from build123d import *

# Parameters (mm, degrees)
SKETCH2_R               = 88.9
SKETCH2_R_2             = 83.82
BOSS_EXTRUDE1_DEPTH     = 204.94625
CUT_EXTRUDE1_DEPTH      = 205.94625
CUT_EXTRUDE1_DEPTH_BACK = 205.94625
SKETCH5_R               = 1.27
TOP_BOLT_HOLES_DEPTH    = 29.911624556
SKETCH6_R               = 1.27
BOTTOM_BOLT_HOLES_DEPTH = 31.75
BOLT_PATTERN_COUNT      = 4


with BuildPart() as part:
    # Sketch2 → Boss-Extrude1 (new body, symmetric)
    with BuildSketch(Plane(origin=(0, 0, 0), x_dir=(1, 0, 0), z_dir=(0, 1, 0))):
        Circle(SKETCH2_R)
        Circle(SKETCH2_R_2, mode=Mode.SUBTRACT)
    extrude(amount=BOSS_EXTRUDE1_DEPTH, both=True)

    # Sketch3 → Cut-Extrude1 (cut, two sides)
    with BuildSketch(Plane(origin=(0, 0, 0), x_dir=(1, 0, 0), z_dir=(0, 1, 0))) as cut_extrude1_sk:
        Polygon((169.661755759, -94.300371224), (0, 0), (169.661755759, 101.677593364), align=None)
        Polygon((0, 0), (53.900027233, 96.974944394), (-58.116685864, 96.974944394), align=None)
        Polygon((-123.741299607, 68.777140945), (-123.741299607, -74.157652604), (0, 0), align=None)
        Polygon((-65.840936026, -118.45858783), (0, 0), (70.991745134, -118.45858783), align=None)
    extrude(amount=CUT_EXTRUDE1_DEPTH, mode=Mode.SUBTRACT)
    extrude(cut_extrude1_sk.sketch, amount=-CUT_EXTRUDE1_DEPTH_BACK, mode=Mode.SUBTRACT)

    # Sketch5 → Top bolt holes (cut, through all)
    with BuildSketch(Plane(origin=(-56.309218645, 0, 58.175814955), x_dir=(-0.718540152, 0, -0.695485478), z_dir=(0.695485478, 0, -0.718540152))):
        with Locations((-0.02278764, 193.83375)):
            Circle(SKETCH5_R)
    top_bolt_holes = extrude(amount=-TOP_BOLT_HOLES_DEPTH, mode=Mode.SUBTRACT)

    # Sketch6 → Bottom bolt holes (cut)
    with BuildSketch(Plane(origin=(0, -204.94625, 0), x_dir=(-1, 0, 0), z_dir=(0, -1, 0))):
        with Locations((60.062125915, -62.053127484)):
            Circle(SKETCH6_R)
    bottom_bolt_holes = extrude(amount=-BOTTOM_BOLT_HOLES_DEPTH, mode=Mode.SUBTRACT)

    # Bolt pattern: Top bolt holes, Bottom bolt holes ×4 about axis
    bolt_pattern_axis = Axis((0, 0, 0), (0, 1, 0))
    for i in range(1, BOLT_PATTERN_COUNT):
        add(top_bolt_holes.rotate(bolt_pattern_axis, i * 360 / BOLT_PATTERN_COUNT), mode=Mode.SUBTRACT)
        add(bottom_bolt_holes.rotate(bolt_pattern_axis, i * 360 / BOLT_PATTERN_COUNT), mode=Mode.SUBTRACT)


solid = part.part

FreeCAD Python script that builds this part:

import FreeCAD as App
import Part
import Sketcher
from FreeCAD import Vector
Q = App.Units.Quantity

doc = App.newDocument("Part")
body = doc.addObject("PartDesign::Body", "Body")
body.AllowCompound = True

# Sketch on XZ plane
sketch1 = body.newObject("Sketcher::SketchObject", "Sketch")
sketch1.AttachmentSupport = (doc.getObject("XZ_Plane"), [""])
sketch1.MapMode = "FlatFace"
sketch1.addGeometry([
    Part.Circle(Vector(0, 0, 0), Vector(0, 0, 1), 89),
    Part.Circle(Vector(0, 0, 0), Vector(0, 0, 1), 84),
], False)
sketch1.addConstraint([
    Sketcher.Constraint("Coincident", 0, 3, -1, 1),
    Sketcher.Constraint("Coincident", 1, 3, -1, 1),
    Sketcher.Constraint("Diameter", 0, Q("7 in")),
    Sketcher.Constraint("Diameter", 1, Q("6.6 in")),
])
pad1 = body.newObject("PartDesign::Pad", "Pad")
pad1.Profile = sketch1
pad1.Length = Q("16.1375 in")
pad1.Midplane = True

# Sketch on XZ plane
sketch2 = body.newObject("Sketcher::SketchObject", "Sketch001")
sketch2.AttachmentSupport = (doc.getObject("XZ_Plane"), [""])
sketch2.MapMode = "FlatFace"
sketch2.addGeometry([
    Part.LineSegment(Vector(0, 0, 0), Vector(170, 94, 0)),  # 0
    Part.LineSegment(Vector(170, 94, 0), Vector(170, -102, 0)),  # 1
    Part.LineSegment(Vector(170, -102, 0), Vector(0, 0, 0)),  # 2
    Part.LineSegment(Vector(0, 0, 0), Vector(54, -97, 0)),  # 3
    Part.LineSegment(Vector(54, -97, 0), Vector(-58, -97, 0)),  # 4
    Part.LineSegment(Vector(-58, -97, 0), Vector(0, 0, 0)),  # 5
    Part.LineSegment(Vector(-124, -69, 0), Vector(-124, 74, 0)),  # 6
    Part.LineSegment(Vector(-124, 74, 0), Vector(0, 0, 0)),  # 7
    Part.LineSegment(Vector(0, 0, 0), Vector(-124, -69, 0)),  # 8
    Part.LineSegment(Vector(0, 0, 0), Vector(-66, 118, 0)),  # 9
    Part.LineSegment(Vector(-66, 118, 0), Vector(71, 118, 0)),  # 10
    Part.LineSegment(Vector(71, 118, 0), Vector(0, 0, 0)),  # 11
], False)
sketch2.addConstraint([
    Sketcher.Constraint("Coincident", 0, 2, 1, 1),
    Sketcher.Constraint("Coincident", 1, 2, 2, 1),
    Sketcher.Constraint("Coincident", 2, 2, 0, 1),
    Sketcher.Constraint("Coincident", 3, 2, 4, 1),
    Sketcher.Constraint("Coincident", 4, 2, 5, 1),
    Sketcher.Constraint("Coincident", 5, 2, 3, 1),
    Sketcher.Constraint("Coincident", 6, 2, 7, 1),
    Sketcher.Constraint("Coincident", 7, 2, 8, 1),
    Sketcher.Constraint("Coincident", 8, 2, 6, 1),
    Sketcher.Constraint("Coincident", 9, 2, 10, 1),
    Sketcher.Constraint("Coincident", 10, 2, 11, 1),
    Sketcher.Constraint("Coincident", 11, 2, 9, 1),
    Sketcher.Constraint("Vertical", 1),
    Sketcher.Constraint("Horizontal", 4),
    Sketcher.Constraint("Vertical", 6),
    Sketcher.Constraint("Horizontal", 10),
    Sketcher.Constraint("Coincident", 2, 2, -1, 1),
    Sketcher.Constraint("Coincident", 5, 2, -1, 1),
    Sketcher.Constraint("Coincident", 7, 2, -1, 1),
    Sketcher.Constraint("Coincident", 11, 2, -1, 1),
    Sketcher.Constraint("Perpendicular", 0, 3),
    Sketcher.Constraint("Perpendicular", 2, 5),
    Sketcher.Constraint("Perpendicular", 5, 7),
    Sketcher.Constraint("Perpendicular", 3, 8),
    Sketcher.Constraint("Perpendicular", 8, 9),
    Sketcher.Constraint("Perpendicular", 7, 11),
    Sketcher.Constraint("DistanceX", 10, 1, 10, 2, 136.832681),
    Sketcher.Constraint("DistanceX", 6, 2, -1, 1, 123.7413),
    Sketcher.Constraint("Distance", 0, 194.107371),
    Sketcher.Constraint("Distance", 11, 138.102371),
    Sketcher.Constraint("DistanceX", 4, 2, 4, 1, 112.016713),
    Sketcher.Constraint("DistanceY", 1, 2, 1, 1, 195.977965),
])
pocket1 = body.newObject("PartDesign::Pocket", "Pocket")
pocket1.Profile = sketch2
pocket1.Type = "ThroughAll"
pocket1.Midplane = True

# Sketch on an angled plane
sketch3 = body.newObject("Sketcher::SketchObject", "Sketch002")
sketch3.Placement = App.Placement(Vector(-56.309219, 0, 58.175815), App.Rotation(Vector(-0.718540152, 0, -0.695485478), Vector(0, 1, 0), Vector(0.695485478, 0, -0.718540152), "ZXY"))
sketch3.addGeometry(Part.Circle(Vector(0, 193.8, 0), Vector(0, 0, 1), 1.3), False)
sketch3.addConstraint([
    Sketcher.Constraint("Diameter", 0, Q("0.1 in")),
    Sketcher.Constraint("DistanceY", -1, 1, 0, 3, 193.83375),
    Sketcher.Constraint("DistanceX", 0, 3, -1, 1, 0.022788),
])
pocket2 = body.newObject("PartDesign::Pocket", "Pocket001")
pocket2.Profile = sketch3
pocket2.Type = "ThroughAll"

# Sketch on XZ plane
sketch4 = body.newObject("Sketcher::SketchObject", "Sketch003")
sketch4.AttachmentSupport = (doc.getObject("XZ_Plane"), [""])
sketch4.MapMode = "FlatFace"
sketch4.AttachmentOffset = App.Placement(Vector(0, 0, 204.94625), App.Rotation())
sketch4.addGeometry(Part.Circle(Vector(-60.1, 62.1, 0), Vector(0, 0, 1), 1.3), False)
sketch4.addConstraint([
    Sketcher.Constraint("Diameter", 0, Q("0.1 in")),
    Sketcher.Constraint("DistanceX", 0, 3, -1, 1, 60.062126),
    Sketcher.Constraint("DistanceY", -1, 1, 0, 3, 62.053127),
])
pocket3 = body.newObject("PartDesign::Pocket", "Pocket002")
pocket3.Profile = sketch4
pocket3.Length = Q("1.25 in")
doc.recompute()

polarpattern = body.newObject("PartDesign::PolarPattern", "PolarPattern")
polarpattern.Originals = [pocket2, pocket3]
polarpattern.Axis = (doc.getObject("Y_Axis"), [""])
polarpattern.Angle = 360
polarpattern.Occurrences = 4
body.Tip = polarpattern

doc.recompute()
